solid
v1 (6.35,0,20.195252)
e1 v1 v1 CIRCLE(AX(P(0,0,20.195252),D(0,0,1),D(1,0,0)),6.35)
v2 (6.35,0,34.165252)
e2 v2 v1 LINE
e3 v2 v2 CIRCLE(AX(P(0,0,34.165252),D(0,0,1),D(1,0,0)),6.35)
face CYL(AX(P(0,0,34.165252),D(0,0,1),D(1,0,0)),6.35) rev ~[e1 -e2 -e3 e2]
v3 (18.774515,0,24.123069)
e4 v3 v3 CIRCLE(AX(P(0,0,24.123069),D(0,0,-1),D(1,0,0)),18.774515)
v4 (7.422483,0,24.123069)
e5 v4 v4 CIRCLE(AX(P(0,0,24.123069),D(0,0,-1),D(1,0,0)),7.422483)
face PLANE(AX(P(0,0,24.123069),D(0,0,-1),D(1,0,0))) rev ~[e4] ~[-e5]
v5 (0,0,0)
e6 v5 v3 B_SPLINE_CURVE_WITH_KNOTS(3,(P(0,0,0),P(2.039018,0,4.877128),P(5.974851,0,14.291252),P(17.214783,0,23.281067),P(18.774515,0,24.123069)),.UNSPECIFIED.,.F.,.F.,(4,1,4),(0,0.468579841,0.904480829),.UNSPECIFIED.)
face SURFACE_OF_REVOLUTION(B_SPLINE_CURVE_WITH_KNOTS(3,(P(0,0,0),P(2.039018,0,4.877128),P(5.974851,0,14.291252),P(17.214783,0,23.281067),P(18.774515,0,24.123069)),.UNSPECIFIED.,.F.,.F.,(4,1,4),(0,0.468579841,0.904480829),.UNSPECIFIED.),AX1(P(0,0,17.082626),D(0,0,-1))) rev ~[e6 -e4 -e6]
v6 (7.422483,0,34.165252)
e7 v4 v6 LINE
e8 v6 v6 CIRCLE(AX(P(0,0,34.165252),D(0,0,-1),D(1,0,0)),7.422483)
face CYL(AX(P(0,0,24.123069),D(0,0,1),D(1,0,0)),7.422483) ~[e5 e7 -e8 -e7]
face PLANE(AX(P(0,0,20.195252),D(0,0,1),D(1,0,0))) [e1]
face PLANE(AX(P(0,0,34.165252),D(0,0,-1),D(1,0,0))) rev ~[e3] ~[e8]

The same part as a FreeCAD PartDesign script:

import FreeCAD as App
import Part
import Sketcher
Q = App.Units.Quantity

doc = App.newDocument("Part")
params = doc.addObject("Spreadsheet::Sheet", "Params")
for row, (alias, value) in enumerate([
    ("revolution_angle", "360 deg"),
    ("sketch2_diameter", "0.5 in"),
    ("pocket1_length", "0.55 in"),
], start=1):
    params.set(f"A{row}", alias)
    params.set(f"B{row}", "=" + value)
    params.setAlias(f"B{row}", alias)

body = doc.addObject("PartDesign::Body", "Body")

sketch1 = body.newObject("Sketcher::SketchObject", "Sketch")
sketch1.AttachmentSupport = (doc.getObject("XZ_Plane"), [""])
sketch1.MapMode = "FlatFace"
sketch1.addGeometry(Part.LineSegment(App.Vector(0, 34.165252, 0), App.Vector(0, 0, 0)), False)
sketch1.addGeometry(Part.BSplineCurve([App.Vector(0, 0, 0), App.Vector(2.039018, 4.877128, 0), App.Vector(5.974851, 14.291252, 0), App.Vector(17.214783, 23.281067, 0), App.Vector(18.774515, 24.123069, 0)], [4, 1, 4], [0, 0.468579841, 0.904480829], False, 3, [1, 1, 1, 1, 1], False), False)
sketch1.addGeometry(Part.LineSegment(App.Vector(18.774515, 24.123069, 0), App.Vector(7.422483, 24.123069, 0)), False)
sketch1.addGeometry(Part.LineSegment(App.Vector(7.422483, 24.123069, 0), App.Vector(7.422483, 34.165252, 0)), False)
sketch1.addGeometry(Part.LineSegment(App.Vector(7.422483, 34.165252, 0), App.Vector(0, 34.165252, 0)), False)
sketch1.addConstraint(Sketcher.Constraint("Block", 1))
sketch1.addConstraint(Sketcher.Constraint("Coincident", 0, 2, 1, 1))
sketch1.addConstraint(Sketcher.Constraint("Coincident", 1, 2, 2, 1))
sketch1.addConstraint(Sketcher.Constraint("Coincident", 2, 2, 3, 1))
sketch1.addConstraint(Sketcher.Constraint("Coincident", 3, 2, 4, 1))
sketch1.addConstraint(Sketcher.Constraint("Coincident", 4, 2, 0, 1))
sketch1.addConstraint(Sketcher.Constraint("Vertical", 0))
sketch1.addConstraint(Sketcher.Constraint("Horizontal", 2))
sketch1.addConstraint(Sketcher.Constraint("Vertical", 3))
sketch1.addConstraint(Sketcher.Constraint("Horizontal", 4))
sketch1.addConstraint(Sketcher.Constraint("DistanceX", 2, 2, 2, 1, 11.352032))
sketch1.addConstraint(Sketcher.Constraint("DistanceY", 0, 2, 0, 1, 34.165252))
revolution = body.newObject("PartDesign::Revolution", "Revolution")
revolution.Profile = sketch1
revolution.ReferenceAxis = (sketch1, ["V_Axis"])
revolution.setExpression("Angle", "Params.revolution_angle")

sketch2 = body.newObject("Sketcher::SketchObject", "Sketch001")
sketch2.AttachmentSupport = (doc.getObject("XY_Plane"), [""])
sketch2.MapMode = "FlatFace"
sketch2.AttachmentOffset = App.Placement(App.Vector(0, 0, 34.165252), App.Rotation())
sketch2.addGeometry(Part.Circle(App.Vector(0, 0, 0), App.Vector(0, 0, 1), 6.35), False)
sketch2.addConstraint(Sketcher.Constraint("Coincident", 0, 3, -1, 1))
sketch2.addConstraint(Sketcher.Constraint("Diameter", 0, Q("0.5 in")))
sketch2.setExpression("Constraints[1]", "Params.sketch2_diameter")
pocket1 = body.newObject("PartDesign::Pocket", "Pocket")
pocket1.Profile = sketch2
pocket1.setExpression("Length", "Params.pocket1_length")

doc.recompute()
